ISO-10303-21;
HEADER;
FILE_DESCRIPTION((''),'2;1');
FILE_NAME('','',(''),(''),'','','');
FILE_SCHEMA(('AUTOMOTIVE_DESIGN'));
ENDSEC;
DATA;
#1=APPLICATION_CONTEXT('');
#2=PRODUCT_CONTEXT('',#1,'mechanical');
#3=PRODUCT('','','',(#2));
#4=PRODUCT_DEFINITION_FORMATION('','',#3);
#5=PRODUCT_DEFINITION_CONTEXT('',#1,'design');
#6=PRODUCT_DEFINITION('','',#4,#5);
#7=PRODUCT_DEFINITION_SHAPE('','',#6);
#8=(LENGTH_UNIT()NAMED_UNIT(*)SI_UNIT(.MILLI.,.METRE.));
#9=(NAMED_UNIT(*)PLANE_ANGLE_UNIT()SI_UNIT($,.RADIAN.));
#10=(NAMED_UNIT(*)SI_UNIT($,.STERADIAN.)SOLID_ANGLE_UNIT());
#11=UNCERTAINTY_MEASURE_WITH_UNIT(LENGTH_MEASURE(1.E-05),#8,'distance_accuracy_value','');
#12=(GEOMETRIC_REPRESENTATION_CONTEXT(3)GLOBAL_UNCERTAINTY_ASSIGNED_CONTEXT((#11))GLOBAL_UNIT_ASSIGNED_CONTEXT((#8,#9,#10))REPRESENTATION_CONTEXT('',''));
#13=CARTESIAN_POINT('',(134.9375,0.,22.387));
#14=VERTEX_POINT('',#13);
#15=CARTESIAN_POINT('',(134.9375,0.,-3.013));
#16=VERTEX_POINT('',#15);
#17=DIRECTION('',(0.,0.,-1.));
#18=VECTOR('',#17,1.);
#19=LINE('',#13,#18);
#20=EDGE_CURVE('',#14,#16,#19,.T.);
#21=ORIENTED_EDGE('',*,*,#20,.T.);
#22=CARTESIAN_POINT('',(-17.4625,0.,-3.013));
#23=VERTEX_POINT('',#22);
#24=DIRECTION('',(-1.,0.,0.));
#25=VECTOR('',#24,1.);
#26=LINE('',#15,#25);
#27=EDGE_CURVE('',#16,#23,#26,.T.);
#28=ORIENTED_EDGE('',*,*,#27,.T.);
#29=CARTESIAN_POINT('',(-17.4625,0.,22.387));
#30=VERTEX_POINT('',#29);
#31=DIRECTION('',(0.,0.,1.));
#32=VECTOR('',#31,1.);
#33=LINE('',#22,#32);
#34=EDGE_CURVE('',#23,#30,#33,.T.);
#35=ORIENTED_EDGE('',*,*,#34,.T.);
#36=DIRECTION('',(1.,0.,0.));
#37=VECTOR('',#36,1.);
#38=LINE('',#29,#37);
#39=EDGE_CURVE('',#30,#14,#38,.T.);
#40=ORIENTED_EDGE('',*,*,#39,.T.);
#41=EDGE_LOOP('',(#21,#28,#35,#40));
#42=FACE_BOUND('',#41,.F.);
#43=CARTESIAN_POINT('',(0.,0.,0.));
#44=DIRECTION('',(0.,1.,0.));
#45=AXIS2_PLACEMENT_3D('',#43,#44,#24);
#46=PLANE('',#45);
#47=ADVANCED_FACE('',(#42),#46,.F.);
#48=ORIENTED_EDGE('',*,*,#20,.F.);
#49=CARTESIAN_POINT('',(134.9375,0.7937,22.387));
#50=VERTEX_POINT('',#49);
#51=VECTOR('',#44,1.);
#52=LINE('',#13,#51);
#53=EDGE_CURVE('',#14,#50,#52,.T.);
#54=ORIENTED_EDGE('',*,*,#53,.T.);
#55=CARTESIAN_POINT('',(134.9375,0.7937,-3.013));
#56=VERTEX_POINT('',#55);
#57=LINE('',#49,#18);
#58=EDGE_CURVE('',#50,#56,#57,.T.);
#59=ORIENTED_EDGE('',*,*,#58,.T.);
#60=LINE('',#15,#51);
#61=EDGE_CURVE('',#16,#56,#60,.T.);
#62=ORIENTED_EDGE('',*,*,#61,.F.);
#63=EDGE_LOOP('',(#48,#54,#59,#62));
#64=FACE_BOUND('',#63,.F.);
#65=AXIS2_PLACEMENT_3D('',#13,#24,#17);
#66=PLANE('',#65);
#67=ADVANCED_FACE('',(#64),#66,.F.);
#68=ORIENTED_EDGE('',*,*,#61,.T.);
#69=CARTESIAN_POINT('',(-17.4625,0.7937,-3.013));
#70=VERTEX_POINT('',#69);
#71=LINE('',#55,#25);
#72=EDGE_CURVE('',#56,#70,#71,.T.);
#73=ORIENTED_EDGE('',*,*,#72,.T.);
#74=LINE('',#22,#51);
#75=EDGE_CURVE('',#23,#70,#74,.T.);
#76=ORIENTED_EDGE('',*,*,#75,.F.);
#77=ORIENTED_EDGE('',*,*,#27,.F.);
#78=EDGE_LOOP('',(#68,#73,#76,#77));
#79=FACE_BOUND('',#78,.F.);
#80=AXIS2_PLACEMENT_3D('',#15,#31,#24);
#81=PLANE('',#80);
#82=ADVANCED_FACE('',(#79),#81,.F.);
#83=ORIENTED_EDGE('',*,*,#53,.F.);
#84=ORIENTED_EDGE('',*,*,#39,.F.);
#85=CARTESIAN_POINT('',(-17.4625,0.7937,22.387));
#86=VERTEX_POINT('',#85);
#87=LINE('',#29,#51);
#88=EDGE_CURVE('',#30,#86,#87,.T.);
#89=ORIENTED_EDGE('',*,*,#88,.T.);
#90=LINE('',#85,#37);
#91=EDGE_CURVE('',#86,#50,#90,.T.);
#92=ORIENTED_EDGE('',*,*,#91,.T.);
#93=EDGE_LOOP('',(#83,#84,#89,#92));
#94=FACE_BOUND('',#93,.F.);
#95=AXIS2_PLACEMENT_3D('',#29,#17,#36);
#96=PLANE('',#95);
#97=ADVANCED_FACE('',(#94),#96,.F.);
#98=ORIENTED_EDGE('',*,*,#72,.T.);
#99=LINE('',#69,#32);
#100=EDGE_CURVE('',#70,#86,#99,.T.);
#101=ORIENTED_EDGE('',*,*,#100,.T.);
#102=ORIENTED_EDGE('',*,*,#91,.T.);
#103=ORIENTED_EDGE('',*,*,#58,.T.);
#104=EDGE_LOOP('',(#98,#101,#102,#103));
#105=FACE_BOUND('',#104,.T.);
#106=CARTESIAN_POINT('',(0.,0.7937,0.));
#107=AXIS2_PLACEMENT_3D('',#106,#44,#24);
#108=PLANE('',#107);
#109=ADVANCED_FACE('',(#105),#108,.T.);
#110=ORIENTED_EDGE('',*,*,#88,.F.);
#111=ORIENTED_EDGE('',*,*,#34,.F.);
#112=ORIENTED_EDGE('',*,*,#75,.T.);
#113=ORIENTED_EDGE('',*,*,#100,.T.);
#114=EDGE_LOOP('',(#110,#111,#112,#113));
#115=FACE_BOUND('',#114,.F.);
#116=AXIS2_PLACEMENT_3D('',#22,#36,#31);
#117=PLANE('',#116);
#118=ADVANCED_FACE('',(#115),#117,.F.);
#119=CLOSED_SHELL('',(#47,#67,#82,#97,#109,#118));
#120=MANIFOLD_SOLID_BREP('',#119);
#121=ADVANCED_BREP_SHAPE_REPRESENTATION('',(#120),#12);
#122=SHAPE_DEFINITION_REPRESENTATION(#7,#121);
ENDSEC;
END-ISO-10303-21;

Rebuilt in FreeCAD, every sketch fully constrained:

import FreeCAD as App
import Part
import Sketcher
Q = App.Units.Quantity


def add_polygon(sketch, points):
    """Adds a closed chain of lines whose ends are joined by coincident constraints."""
    first, n = sketch.GeometryCount, len(points)
    for a, b in zip(points, points[1:] + points[:1]):
        sketch.addGeometry(Part.LineSegment(App.Vector(*a, 0), App.Vector(*b, 0)), False)
    for i in range(n):
        sketch.addConstraint(Sketcher.Constraint("Coincident", first + i, 2, first + (i + 1) % n, 1))

doc = App.newDocument("Part")
body = doc.addObject("PartDesign::Body", "Body")

# Sketch on XZ plane
sketch1 = body.newObject("Sketcher::SketchObject", "Sketch")
sketch1.AttachmentSupport = (doc.getObject("XZ_Plane"), [""])
sketch1.MapMode = "FlatFace"
add_polygon(sketch1, [(-17.4625, -3.013), (-17.4625, 22.387), (134.9375, 22.387), (134.9375, -3.013)])  # lines 0-3
sketch1.addConstraint([
    Sketcher.Constraint("Vertical", 0),
    Sketcher.Constraint("Horizontal", 1),
    Sketcher.Constraint("Vertical", 2),
    Sketcher.Constraint("Horizontal", 3),
    Sketcher.Constraint("DistanceX", 1, 1, 1, 2, Q("6 in")),
    Sketcher.Constraint("DistanceY", 0, 1, 0, 2, Q("1 in")),
    Sketcher.Constraint("DistanceX", 0, 2, -1, 1, Q("0.6875 in")),
    Sketcher.Constraint("DistanceY", -1, 1, 0, 2, 22.387),
])
pad1 = body.newObject("PartDesign::Pad", "Pad")
pad1.Profile = sketch1
pad1.Length = Q("0.031248 in")
pad1.Reversed = True

doc.recompute()
